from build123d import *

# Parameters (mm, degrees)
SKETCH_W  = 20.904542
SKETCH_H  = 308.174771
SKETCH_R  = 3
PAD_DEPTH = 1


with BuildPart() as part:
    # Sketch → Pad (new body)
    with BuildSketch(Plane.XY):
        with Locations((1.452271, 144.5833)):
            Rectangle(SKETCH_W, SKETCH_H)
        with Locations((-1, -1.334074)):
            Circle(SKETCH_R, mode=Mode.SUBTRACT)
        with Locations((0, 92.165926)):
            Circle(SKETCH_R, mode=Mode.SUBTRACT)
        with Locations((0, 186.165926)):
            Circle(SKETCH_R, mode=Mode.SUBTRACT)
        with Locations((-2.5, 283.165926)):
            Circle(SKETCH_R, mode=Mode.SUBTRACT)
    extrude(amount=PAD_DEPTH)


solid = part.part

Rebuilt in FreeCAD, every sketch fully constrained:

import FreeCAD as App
import Part
import Sketcher
from FreeCAD import Vector


def add_polygon(sketch, points):
    """Adds a closed chain of lines whose ends are joined by coincident constraints."""
    first, n = sketch.GeometryCount, len(points)
    for a, b in zip(points, points[1:] + points[:1]):
        sketch.addGeometry(Part.LineSegment(App.Vector(*a, 0), App.Vector(*b, 0)), False)
    for i in range(n):
        sketch.addConstraint(Sketcher.Constraint("Coincident", first + i, 2, first + (i + 1) % n, 1))

doc = App.newDocument("Part")
params = doc.addObject("Spreadsheet::Sheet", "Params")
for row, (alias, value) in enumerate([
    ("sketch1_diameter", "6 mm"),
    ("pad1_length", "1 mm"),
], start=1):
    params.set(f"A{row}", alias)
    params.set(f"B{row}", "=" + value)
    params.setAlias(f"B{row}", alias)

body = doc.addObject("PartDesign::Body", "Body")

# Sketch on XY plane
sketch1 = body.newObject("Sketcher::SketchObject", "Sketch")
sketch1.AttachmentSupport = (doc.getObject("XY_Plane"), [""])
sketch1.MapMode = "FlatFace"
add_polygon(sketch1, [(-9, 298.670685), (-9, -9.504086), (11.904542, -9.504086), (11.904542, 298.670685)])  # lines 0-3
sketch1.addGeometry(Part.Circle(Vector(-1, -1.334074, 0), Vector(0, 0, 1), 3), False)  # 4
sketch1.addGeometry(Part.Circle(Vector(0, 92.165926, 0), Vector(0, 0, 1), 3), False)  # 5
sketch1.addGeometry(Part.Circle(Vector(-2.5, 283.165926, 0), Vector(0, 0, 1), 3), False)  # 6
sketch1.addGeometry(Part.Circle(Vector(0, 186.165926, 0), Vector(0, 0, 1), 3), False)  # 7
sketch1.addConstraint(Sketcher.Constraint("Vertical", 0))
sketch1.addConstraint(Sketcher.Constraint("Horizontal", 1))
sketch1.addConstraint(Sketcher.Constraint("Vertical", 2))
sketch1.addConstraint(Sketcher.Constraint("Horizontal", 3))
sketch1.addConstraint(Sketcher.Constraint("Equal", 4, 5))
sketch1.addConstraint(Sketcher.Constraint("Equal", 5, 6))
sketch1.addConstraint(Sketcher.Constraint("Equal", 6, 7))
sketch1.addConstraint(Sketcher.Constraint("PointOnObject", 5, 3, -2))
sketch1.addConstraint(Sketcher.Constraint("PointOnObject", 7, 3, -2))
sketch1.addConstraint(Sketcher.Constraint("Diameter", 4, 6.0))
sketch1.addConstraint(Sketcher.Constraint("DistanceX", 4, 3, -1, 1, 1.0))
sketch1.addConstraint(Sketcher.Constraint("DistanceX", 0, 2, -1, 1, 9.0))
sketch1.addConstraint(Sketcher.Constraint("DistanceY", 5, 3, 6, 3, 191.0))
sketch1.addConstraint(Sketcher.Constraint("DistanceY", 5, 3, 7, 3, 94.0))
sketch1.addConstraint(Sketcher.Constraint("DistanceX", 6, 3, -1, 1, 2.5))
sketch1.addConstraint(Sketcher.Constraint("DistanceY", 4, 3, 5, 3, 93.5))
sketch1.addConstraint(Sketcher.Constraint("DistanceX", 1, 1, 1, 2, 20.904542))
sketch1.addConstraint(Sketcher.Constraint("DistanceY", 0, 2, 0, 1, 308.174771))
sketch1.addConstraint(Sketcher.Constraint("DistanceY", 0, 2, 4, 3, 8.170012))
sketch1.addConstraint(Sketcher.Constraint("DistanceY", 4, 3, -1, 1, 1.334074))
sketch1.setExpression("Constraints[13]", "Params.sketch1_diameter")
pad1 = body.newObject("PartDesign::Pad", "Pad")
pad1.Profile = sketch1
pad1.setExpression("Length", "Params.pad1_length")

doc.recompute()
